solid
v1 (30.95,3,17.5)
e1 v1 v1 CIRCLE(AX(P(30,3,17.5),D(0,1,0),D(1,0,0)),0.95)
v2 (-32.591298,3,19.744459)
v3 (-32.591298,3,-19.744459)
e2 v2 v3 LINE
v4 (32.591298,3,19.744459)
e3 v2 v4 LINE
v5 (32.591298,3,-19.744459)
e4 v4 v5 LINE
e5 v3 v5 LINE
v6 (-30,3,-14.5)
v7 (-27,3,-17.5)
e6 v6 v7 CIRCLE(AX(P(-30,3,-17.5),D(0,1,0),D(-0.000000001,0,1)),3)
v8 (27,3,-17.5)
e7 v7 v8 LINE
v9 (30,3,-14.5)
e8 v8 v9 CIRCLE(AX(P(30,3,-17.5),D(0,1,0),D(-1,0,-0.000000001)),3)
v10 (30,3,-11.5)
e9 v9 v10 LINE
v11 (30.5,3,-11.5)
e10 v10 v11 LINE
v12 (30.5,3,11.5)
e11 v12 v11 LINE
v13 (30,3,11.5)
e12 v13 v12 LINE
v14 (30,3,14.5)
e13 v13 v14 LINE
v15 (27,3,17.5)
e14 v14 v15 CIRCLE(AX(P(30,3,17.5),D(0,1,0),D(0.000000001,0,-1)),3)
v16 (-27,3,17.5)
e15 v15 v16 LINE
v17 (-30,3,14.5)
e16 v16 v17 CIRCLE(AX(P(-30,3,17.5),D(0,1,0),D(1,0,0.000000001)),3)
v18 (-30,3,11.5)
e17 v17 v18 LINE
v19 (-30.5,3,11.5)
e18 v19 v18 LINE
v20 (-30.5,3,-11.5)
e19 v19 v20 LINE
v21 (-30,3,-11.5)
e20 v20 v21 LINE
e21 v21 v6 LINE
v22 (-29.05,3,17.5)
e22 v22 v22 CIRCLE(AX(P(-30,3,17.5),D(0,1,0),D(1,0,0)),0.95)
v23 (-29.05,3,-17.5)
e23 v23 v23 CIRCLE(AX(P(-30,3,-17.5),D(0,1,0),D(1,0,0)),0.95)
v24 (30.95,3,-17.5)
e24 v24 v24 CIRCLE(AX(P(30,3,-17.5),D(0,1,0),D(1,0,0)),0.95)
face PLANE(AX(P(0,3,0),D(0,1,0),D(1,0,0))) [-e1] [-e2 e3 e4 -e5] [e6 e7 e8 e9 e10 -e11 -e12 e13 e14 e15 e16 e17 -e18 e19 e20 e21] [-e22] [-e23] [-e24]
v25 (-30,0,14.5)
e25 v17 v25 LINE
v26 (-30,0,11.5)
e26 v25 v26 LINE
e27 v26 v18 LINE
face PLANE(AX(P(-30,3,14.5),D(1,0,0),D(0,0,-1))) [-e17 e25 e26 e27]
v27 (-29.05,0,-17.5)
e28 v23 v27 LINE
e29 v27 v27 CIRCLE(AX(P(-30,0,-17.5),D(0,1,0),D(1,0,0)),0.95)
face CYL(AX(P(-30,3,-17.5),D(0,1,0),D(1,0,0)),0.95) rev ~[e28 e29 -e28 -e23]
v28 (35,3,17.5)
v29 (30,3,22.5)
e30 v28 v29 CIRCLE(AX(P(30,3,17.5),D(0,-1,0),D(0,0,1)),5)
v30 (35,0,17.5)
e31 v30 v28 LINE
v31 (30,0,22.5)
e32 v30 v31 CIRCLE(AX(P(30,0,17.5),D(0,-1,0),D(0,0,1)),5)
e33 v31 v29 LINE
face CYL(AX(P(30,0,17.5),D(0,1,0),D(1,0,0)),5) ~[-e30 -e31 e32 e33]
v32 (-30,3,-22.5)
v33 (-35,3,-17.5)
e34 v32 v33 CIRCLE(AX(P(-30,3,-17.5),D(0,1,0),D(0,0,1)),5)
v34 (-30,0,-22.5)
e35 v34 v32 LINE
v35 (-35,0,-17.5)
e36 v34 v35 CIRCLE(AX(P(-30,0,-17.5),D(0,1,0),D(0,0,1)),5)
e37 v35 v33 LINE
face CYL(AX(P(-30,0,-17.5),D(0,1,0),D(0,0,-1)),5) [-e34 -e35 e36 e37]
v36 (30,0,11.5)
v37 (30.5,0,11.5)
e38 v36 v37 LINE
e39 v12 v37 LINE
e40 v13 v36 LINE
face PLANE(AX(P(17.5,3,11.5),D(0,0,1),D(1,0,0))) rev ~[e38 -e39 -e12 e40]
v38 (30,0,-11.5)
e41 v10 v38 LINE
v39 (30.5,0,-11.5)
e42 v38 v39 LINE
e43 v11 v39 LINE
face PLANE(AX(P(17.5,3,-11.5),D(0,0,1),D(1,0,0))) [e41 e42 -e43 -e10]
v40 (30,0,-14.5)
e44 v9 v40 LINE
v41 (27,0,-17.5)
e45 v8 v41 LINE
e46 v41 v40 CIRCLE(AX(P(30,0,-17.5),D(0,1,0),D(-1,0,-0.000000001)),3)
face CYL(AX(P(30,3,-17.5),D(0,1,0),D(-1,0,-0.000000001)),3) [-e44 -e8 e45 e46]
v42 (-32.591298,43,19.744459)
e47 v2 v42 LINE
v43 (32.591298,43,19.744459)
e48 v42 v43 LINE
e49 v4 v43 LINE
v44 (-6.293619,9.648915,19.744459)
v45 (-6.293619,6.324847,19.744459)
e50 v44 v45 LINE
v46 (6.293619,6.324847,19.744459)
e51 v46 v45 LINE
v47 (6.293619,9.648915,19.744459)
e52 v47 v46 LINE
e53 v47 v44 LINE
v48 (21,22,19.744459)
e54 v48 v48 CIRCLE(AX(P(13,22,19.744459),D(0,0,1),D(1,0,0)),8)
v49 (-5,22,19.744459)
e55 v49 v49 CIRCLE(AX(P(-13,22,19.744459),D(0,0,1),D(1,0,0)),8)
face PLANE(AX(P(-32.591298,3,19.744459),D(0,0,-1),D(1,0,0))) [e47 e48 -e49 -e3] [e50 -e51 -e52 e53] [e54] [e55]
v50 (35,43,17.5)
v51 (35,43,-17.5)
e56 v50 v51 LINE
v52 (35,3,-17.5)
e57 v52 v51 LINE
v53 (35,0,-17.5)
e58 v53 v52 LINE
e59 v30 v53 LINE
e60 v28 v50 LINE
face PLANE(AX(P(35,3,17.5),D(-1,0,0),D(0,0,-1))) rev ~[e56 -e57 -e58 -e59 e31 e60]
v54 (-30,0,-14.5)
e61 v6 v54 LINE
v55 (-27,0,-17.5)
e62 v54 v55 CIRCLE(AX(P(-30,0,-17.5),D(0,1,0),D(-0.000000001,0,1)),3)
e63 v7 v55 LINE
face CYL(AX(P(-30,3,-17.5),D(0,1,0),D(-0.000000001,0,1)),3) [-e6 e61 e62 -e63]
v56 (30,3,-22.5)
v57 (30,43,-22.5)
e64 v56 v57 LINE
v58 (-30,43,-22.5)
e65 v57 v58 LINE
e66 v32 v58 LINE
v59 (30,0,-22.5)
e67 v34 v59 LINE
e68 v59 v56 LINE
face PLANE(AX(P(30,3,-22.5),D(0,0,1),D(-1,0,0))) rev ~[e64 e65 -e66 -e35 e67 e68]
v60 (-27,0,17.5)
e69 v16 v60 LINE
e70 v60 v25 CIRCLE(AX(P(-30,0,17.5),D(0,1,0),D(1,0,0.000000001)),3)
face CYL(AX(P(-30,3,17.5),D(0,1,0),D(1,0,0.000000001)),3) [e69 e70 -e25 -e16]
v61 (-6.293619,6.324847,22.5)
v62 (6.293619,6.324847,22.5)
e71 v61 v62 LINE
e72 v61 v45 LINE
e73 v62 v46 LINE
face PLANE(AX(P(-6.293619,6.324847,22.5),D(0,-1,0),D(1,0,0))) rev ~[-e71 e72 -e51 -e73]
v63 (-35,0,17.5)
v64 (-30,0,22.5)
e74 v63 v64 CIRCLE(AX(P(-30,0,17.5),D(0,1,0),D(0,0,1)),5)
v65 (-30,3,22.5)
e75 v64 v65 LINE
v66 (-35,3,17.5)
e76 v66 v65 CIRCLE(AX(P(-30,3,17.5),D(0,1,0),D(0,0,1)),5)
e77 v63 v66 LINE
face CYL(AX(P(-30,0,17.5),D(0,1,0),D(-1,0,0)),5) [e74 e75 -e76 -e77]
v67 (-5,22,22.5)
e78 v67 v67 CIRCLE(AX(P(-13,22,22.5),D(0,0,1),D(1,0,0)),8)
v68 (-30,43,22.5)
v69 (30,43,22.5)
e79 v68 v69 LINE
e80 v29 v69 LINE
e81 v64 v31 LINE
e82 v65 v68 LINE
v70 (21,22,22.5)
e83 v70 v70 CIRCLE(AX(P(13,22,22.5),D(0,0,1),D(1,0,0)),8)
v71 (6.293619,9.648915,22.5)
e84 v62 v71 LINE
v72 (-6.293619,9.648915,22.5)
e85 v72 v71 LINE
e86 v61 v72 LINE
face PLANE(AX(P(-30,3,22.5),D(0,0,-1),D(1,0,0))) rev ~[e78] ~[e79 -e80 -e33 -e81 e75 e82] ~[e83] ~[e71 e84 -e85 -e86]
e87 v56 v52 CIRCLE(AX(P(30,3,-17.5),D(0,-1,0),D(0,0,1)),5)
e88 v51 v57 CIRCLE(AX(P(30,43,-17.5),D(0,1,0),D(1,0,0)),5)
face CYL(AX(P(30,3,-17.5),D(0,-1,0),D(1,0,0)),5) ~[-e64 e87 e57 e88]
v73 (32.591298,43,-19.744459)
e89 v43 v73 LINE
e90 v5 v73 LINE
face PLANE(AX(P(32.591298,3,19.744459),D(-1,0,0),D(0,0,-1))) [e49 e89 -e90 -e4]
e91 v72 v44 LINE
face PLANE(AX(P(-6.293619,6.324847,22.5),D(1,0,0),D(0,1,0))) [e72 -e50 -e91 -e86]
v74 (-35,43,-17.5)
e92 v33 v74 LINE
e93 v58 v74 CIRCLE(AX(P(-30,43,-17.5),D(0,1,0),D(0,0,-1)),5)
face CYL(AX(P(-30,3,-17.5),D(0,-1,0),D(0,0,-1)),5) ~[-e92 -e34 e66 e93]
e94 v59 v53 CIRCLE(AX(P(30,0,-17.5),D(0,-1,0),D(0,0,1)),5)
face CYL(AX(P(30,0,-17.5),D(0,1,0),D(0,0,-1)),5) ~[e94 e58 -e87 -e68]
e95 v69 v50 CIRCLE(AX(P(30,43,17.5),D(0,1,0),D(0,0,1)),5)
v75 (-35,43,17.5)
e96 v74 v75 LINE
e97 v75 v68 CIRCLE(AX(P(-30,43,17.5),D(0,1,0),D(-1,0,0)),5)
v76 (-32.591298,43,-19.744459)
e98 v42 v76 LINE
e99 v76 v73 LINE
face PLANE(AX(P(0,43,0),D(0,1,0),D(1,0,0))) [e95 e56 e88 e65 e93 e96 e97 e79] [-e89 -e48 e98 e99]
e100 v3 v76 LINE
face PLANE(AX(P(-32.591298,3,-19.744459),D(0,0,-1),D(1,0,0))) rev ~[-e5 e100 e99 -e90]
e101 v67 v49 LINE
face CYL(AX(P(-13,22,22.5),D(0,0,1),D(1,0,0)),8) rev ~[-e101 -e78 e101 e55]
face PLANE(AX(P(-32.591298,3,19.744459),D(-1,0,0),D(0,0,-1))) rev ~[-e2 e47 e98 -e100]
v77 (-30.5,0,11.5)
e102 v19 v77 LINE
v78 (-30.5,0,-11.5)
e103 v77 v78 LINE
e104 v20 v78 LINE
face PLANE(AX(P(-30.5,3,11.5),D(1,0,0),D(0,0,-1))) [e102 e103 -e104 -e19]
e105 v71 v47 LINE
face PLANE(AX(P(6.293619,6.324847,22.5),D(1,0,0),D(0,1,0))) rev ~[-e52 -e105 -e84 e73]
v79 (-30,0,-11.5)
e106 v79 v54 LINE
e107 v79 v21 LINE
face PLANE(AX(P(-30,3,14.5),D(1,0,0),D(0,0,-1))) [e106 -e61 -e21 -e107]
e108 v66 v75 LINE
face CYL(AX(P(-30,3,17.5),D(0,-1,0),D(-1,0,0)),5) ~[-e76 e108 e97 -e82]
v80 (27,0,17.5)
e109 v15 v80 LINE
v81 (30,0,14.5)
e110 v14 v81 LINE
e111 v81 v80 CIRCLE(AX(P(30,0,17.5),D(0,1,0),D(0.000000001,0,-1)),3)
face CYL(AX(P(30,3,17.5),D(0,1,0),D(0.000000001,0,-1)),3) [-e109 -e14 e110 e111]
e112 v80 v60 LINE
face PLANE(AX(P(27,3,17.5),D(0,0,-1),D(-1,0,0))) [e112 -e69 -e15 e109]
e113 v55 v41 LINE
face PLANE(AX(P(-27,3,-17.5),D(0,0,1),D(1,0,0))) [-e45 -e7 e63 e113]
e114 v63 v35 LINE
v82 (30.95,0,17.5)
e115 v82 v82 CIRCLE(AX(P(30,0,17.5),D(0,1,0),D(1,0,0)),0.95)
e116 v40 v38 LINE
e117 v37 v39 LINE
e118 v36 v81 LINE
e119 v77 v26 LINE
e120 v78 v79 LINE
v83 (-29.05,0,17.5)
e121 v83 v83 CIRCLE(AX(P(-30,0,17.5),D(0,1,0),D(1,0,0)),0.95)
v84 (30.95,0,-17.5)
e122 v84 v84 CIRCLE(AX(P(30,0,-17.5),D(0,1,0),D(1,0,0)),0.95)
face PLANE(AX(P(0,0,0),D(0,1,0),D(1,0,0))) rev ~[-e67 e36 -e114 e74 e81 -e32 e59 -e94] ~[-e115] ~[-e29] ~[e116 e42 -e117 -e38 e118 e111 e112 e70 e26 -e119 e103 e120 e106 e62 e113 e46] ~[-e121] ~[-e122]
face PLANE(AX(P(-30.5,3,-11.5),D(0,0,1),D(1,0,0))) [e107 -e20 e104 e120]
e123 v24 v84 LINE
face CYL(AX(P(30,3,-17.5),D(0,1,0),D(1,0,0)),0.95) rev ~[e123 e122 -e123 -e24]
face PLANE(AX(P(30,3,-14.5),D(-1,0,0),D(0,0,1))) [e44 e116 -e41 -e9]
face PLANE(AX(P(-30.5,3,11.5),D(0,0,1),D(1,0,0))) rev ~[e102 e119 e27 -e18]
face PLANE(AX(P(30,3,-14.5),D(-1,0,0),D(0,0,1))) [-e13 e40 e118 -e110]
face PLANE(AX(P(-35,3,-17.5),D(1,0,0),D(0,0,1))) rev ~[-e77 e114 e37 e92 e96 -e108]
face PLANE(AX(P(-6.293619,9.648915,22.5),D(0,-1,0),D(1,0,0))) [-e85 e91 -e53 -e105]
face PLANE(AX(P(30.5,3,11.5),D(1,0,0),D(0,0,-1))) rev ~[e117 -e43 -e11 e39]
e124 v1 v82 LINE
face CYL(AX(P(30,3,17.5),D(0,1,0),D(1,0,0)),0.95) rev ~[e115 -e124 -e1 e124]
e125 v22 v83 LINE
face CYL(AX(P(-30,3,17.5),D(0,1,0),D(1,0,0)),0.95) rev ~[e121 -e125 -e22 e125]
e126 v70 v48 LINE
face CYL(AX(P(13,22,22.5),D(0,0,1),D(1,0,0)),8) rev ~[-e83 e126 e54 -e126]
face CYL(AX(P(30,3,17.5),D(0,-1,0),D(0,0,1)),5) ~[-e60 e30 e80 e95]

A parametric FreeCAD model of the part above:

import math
import FreeCAD as App
import Part
import Sketcher

V = App.Vector
Q = App.Units.Quantity


def edges_at(feature, points):
    """Names of the edges that pass closest to the given points."""
    edges = feature.Shape.Edges
    near = lambda p: min(range(len(edges)), key=lambda i: edges[i].distToShape(Part.Vertex(*p))[0])
    return sorted({f"Edge{near(p) + 1}" for p in points})

doc = App.newDocument("Part")
body = doc.addObject("PartDesign::Body", "Body")

sketch1 = body.newObject("Sketcher::SketchObject", "Sketch")
sketch1.AttachmentSupport = (doc.getObject("XZ_Plane"), [""])
sketch1.MapMode = "FlatFace"
sketch1.addGeometry([
    Part.LineSegment(V(-35, -22, 0), V(-35, 22, 0)),
    Part.LineSegment(V(-35, 22, 0), V(35, 22, 0)),
    Part.LineSegment(V(35, 22, 0), V(35, -22, 0)),
    Part.LineSegment(V(35, -22, 0), V(-35, -22, 0)),
], False)
sketch1.addConstraint([
    Sketcher.Constraint("Coincident", 0, 2, 1, 1),
    Sketcher.Constraint("Coincident", 1, 2, 2, 1),
    Sketcher.Constraint("Coincident", 2, 2, 3, 1),
    Sketcher.Constraint("Coincident", 3, 2, 0, 1),
    Sketcher.Constraint("Vertical", 0),
    Sketcher.Constraint("Horizontal", 1),
    Sketcher.Constraint("Vertical", 2),
    Sketcher.Constraint("Horizontal", 3),
    Sketcher.Constraint("Symmetric", 0, 2, 2, 2, -1, 1),
    Sketcher.Constraint("DistanceX", 1, 1, 1, 2, Q("70 mm")),
    Sketcher.Constraint("DistanceY", 0, 1, 0, 2, Q("45 mm")),
])
pad1 = body.newObject("PartDesign::Pad", "Pad")
pad1.Profile = sketch1
pad1.Length = 3
pad1.Reversed = True

sketch2 = body.newObject("Sketcher::SketchObject", "Sketch001")
sketch2.AttachmentSupport = (doc.getObject("XZ_Plane"), [""])
sketch2.MapMode = "FlatFace"
sketch2.AttachmentOffset = App.Placement(V(0, 0, -3), App.Rotation())
sketch2.addGeometry([
    Part.LineSegment(V(18, -12, 0), V(18, 12, 0)),
    Part.LineSegment(V(18, 12, 0), V(30, 12, 0)),
    Part.LineSegment(V(30, 12, 0), V(30, -12, 0)),
    Part.LineSegment(V(30, -12, 0), V(18, -12, 0)),
    Part.LineSegment(V(-30, -12, 0), V(-30, 12, 0)),
    Part.LineSegment(V(-30, 12, 0), V(-18, 12, 0)),
    Part.LineSegment(V(-18, 12, 0), V(-18, -12, 0)),
    Part.LineSegment(V(-18, -12, 0), V(-30, -12, 0)),
], False)
sketch2.addConstraint([
    Sketcher.Constraint("Coincident", 0, 2, 1, 1),
    Sketcher.Constraint("Coincident", 1, 2, 2, 1),
    Sketcher.Constraint("Coincident", 2, 2, 3, 1),
    Sketcher.Constraint("Coincident", 3, 2, 0, 1),
    Sketcher.Constraint("Coincident", 4, 2, 5, 1),
    Sketcher.Constraint("Coincident", 5, 2, 6, 1),
    Sketcher.Constraint("Coincident", 6, 2, 7, 1),
    Sketcher.Constraint("Coincident", 7, 2, 4, 1),
    Sketcher.Constraint("Vertical", 0),
    Sketcher.Constraint("Horizontal", 1),
    Sketcher.Constraint("Vertical", 2),
    Sketcher.Constraint("Horizontal", 3),
    Sketcher.Constraint("Vertical", 4),
    Sketcher.Constraint("Horizontal", 5),
    Sketcher.Constraint("Vertical", 6),
    Sketcher.Constraint("Horizontal", 7),
    Sketcher.Constraint("Symmetric", 2, 2, 4, 2, -1, 1),
    Sketcher.Constraint("Symmetric", 0, 2, 6, 2, -1, 1),
    Sketcher.Constraint("Horizontal", 1, 2, 4, 2),
    Sketcher.Constraint("DistanceX", 1, 1, 1, 2, Q("13 mm")),
    Sketcher.Constraint("DistanceY", 0, 1, 0, 2, Q("23 mm")),
    Sketcher.Constraint("DistanceX", 4, 2, 0, 2, Q("48 mm")),
])
pocket1 = body.newObject("PartDesign::Pocket", "Pocket")
pocket1.Profile = sketch2
pocket1.Length = 10
pocket1.Reversed = True

sketch3 = body.newObject("Sketcher::SketchObject", "Sketch002")
sketch3.AttachmentSupport = (doc.getObject("XZ_Plane"), [""])
sketch3.MapMode = "FlatFace"
sketch3.AttachmentOffset = App.Placement(V(0, 0, -3), App.Rotation())
sketch3.addGeometry([
    Part.Circle(V(-24, -14, 0), V(0, 0, 1), 0.9),
    Part.Circle(V(-24, 14, 0), V(0, 0, 1), 0.9),
    Part.Circle(V(24, -14, 0), V(0, 0, 1), 0.9),
    Part.Circle(V(24, 14, 0), V(0, 0, 1), 0.9),
], False)
sketch3.addConstraint([
    Sketcher.Constraint("Equal", 0, 1),
    Sketcher.Constraint("Equal", 1, 2),
    Sketcher.Constraint("Equal", 2, 3),
    Sketcher.Constraint("Symmetric", 1, 3, 2, 3, -1, 1),
    Sketcher.Constraint("Symmetric", 0, 3, 3, 3, -1, 1),
    Sketcher.Constraint("Symmetric", 0, 3, 2, 3, -2),
    Sketcher.Constraint("Diameter", 0, Q("1.9 mm")),
    Sketcher.Constraint("DistanceX", 0, 3, -1, 1, Q("24 mm")),
    Sketcher.Constraint("DistanceY", 0, 3, -1, 1, Q("14 mm")),
])
pocket2 = body.newObject("PartDesign::Pocket", "Pocket001")
pocket2.Profile = sketch3
pocket2.Length = 10
pocket2.Reversed = True
doc.recompute()

fillet = body.newObject("PartDesign::Fillet", "Fillet")
fillet.Base = (pocket2, edges_at(pocket2, [(35, 1.5, -22.5)]))
fillet.Radius = 5
doc.recompute()

fillet2 = body.newObject("PartDesign::Fillet", "Fillet001")
fillet2.Base = (fillet, edges_at(fillet, [(35, 1.5, 22.5), (-35, 1.5, 22.5), (-35, 1.5, -22.5)]))
fillet2.Radius = 5

sketch4 = body.newObject("Sketcher::SketchObject", "Sketch003")
sketch4.AttachmentSupport = (doc.getObject("XZ_Plane"), [""])
sketch4.MapMode = "FlatFace"
sketch4.AttachmentOffset = App.Placement(V(0, 0, -3), App.Rotation())
sketch4.addGeometry([
    Part.Circle(V(-30, -17.5, 0), V(0, 0, 1), 0.9),
    Part.Circle(V(30, -17.5, 0), V(0, 0, 1), 0.9),
    Part.Circle(V(-30, 17.5, 0), V(0, 0, 1), 0.9),
    Part.Circle(V(30, 17.5, 0), V(0, 0, 1), 0.9),
], False)
sketch4.addConstraint([
    Sketcher.Constraint("Equal", 0, 1),
    Sketcher.Constraint("Equal", 1, 2),
    Sketcher.Constraint("Equal", 2, 3),
    Sketcher.Constraint("Symmetric", 1, 3, 2, 3, -1, 1),
    Sketcher.Constraint("Symmetric", 0, 3, 3, 3, -1, 1),
    Sketcher.Constraint("Symmetric", 0, 3, 1, 3, -2),
    Sketcher.Constraint("Diameter", 0, Q("1.9 mm")),
    Sketcher.Constraint("DistanceX", 0, 3, -1, 1, Q("30 mm")),
    Sketcher.Constraint("DistanceY", 0, 3, 2, 3, Q("35 mm")),
])
pocket3 = body.newObject("PartDesign::Pocket", "Pocket002")
pocket3.Profile = sketch4
pocket3.Length = 10
pocket3.Reversed = True

sketch5 = body.newObject("Sketcher::SketchObject", "Sketch004")
sketch5.AttachmentSupport = (doc.getObject("XZ_Plane"), [""])
sketch5.MapMode = "FlatFace"
sketch5.AttachmentOffset = App.Placement(V(0, 0, -3), App.Rotation())
sketch5.addGeometry([
    Part.LineSegment(V(27, -17.5, 0), V(-27, -17.5, 0)),
    Part.ArcOfCircle(Part.Circle(V(-30, -17.5, 0), V(0, 0, 1), 3), math.radians(0), math.radians(90)),
    Part.LineSegment(V(-30, -14.5, 0), V(-30, 14.5, 0)),
    Part.ArcOfCircle(Part.Circle(V(-30, 17.5, 0), V(0, 0, 1), 3), math.radians(-90), math.radians(0)),
    Part.LineSegment(V(-27, 17.5, 0), V(27, 17.5, 0)),
    Part.ArcOfCircle(Part.Circle(V(30, 17.5, 0), V(0, 0, 1), 3), math.radians(180), math.radians(270)),
    Part.LineSegment(V(30, 14.5, 0), V(30, -14.5, 0)),
    Part.ArcOfCircle(Part.Circle(V(30, -17.5, 0), V(0, 0, 1), 3), math.radians(90), math.radians(180)),
], False)
sketch5.addConstraint([
    Sketcher.Constraint("Coincident", 0, 2, 1, 1),
    Sketcher.Constraint("Coincident", 1, 2, 2, 1),
    Sketcher.Constraint("Coincident", 2, 2, 3, 1),
    Sketcher.Constraint("Coincident", 3, 2, 4, 1),
    Sketcher.Constraint("Coincident", 4, 2, 5, 1),
    Sketcher.Constraint("Coincident", 5, 2, 6, 1),
    Sketcher.Constraint("Coincident", 6, 2, 7, 1),
    Sketcher.Constraint("Coincident", 7, 2, 0, 1),
    Sketcher.Constraint("Horizontal", 0),
    Sketcher.Constraint("Vertical", 2),
    Sketcher.Constraint("Horizontal", 4),
    Sketcher.Constraint("Vertical", 6),
    Sketcher.Constraint("Equal", 1, 3),
    Sketcher.Constraint("Equal", 3, 5),
    Sketcher.Constraint("Equal", 5, 7),
    Sketcher.Constraint("Symmetric", 1, 3, 5, 3, -1, 1),
    Sketcher.Constraint("Symmetric", 3, 3, 7, 3, -1, 1),
    Sketcher.Constraint("Symmetric", 3, 3, 5, 3, -2),
    Sketcher.Constraint("Horizontal", 7, 3, 0, 2),
    Sketcher.Constraint("Horizontal", 5, 3, 3, 2),
    Sketcher.Constraint("Vertical", 3, 3, 1, 2),
    Sketcher.Constraint("Vertical", 7, 3, 5, 2),
    Sketcher.Constraint("Radius", 1, Q("3 mm")),
    Sketcher.Constraint("DistanceX", 0, 2, 0, 1, Q("54 mm")),
    Sketcher.Constraint("DistanceY", 2, 1, 2, 2, Q("29 mm")),
])
pocket4 = body.newObject("PartDesign::Pocket", "Pocket003")
pocket4.Profile = sketch5
pocket4.Length = 10
pocket4.Reversed = True

sketch6 = body.newObject("Sketcher::SketchObject", "Sketch005")
sketch6.AttachmentSupport = (doc.getObject("XZ_Plane"), [""])
sketch6.MapMode = "FlatFace"
sketch6.AttachmentOffset = App.Placement(V(0, 0, -3), App.Rotation())
sketch6.addGeometry([
    Part.LineSegment(V(-30, 22, 0), V(30, 22, 0)),
    Part.ArcOfCircle(Part.Circle(V(30, 18, 0), V(0, 0, 1), 5), math.radians(0), math.radians(90)),
    Part.LineSegment(V(35, 18, 0), V(35, -18, 0)),
    Part.ArcOfCircle(Part.Circle(V(30, -18, 0), V(0, 0, 1), 5), math.radians(-90), math.radians(0)),
    Part.LineSegment(V(30, -22, 0), V(-30, -22, 0)),
    Part.ArcOfCircle(Part.Circle(V(-30, -18, 0), V(0, 0, 1), 5), math.radians(180), math.radians(270)),
    Part.LineSegment(V(-35, -18, 0), V(-35, 18, 0)),
    Part.ArcOfCircle(Part.Circle(V(-30, 18, 0), V(0, 0, 1), 5), math.radians(90), math.radians(180)),
    Part.LineSegment(V(33, 20, 0), V(-33, 20, 0)),
    Part.LineSegment(V(-33, 20, 0), V(-33, -20, 0)),
    Part.LineSegment(V(-33, -20, 0), V(33, -20, 0)),
    Part.LineSegment(V(33, -20, 0), V(33, 20, 0)),
], False)
sketch6.addConstraint([
    Sketcher.Constraint("Tangent", 0, 2, 1, 2),
    Sketcher.Constraint("Tangent", 1, 1, 2, 1),
    Sketcher.Constraint("Tangent", 2, 2, 3, 2),
    Sketcher.Constraint("Tangent", 3, 1, 4, 1),
    Sketcher.Constraint("Tangent", 4, 2, 5, 2),
    Sketcher.Constraint("Tangent", 5, 1, 6, 1),
    Sketcher.Constraint("Tangent", 6, 2, 7, 2),
    Sketcher.Constraint("Tangent", 7, 1, 0, 1),
    Sketcher.Constraint("Coincident", 8, 2, 9, 1),
    Sketcher.Constraint("Coincident", 9, 2, 10, 1),
    Sketcher.Constraint("Coincident", 10, 2, 11, 1),
    Sketcher.Constraint("Coincident", 11, 2, 8, 1),
    Sketcher.Constraint("Horizontal", 0),
    Sketcher.Constraint("Vertical", 2),
    Sketcher.Constraint("Horizontal", 4),
    Sketcher.Constraint("Vertical", 6),
    Sketcher.Constraint("Horizontal", 8),
    Sketcher.Constraint("Vertical", 9),
    Sketcher.Constraint("Horizontal", 10),
    Sketcher.Constraint("Vertical", 11),
    Sketcher.Constraint("Equal", 1, 3),
    Sketcher.Constraint("Equal", 3, 5),
    Sketcher.Constraint("Equal", 5, 7),
    Sketcher.Constraint("Symmetric", 1, 3, 5, 3, -1, 1),
    Sketcher.Constraint("Symmetric", 8, 2, 10, 2, -1, 1),
    Sketcher.Constraint("Radius", 1, Q("5 mm")),
    Sketcher.Constraint("DistanceX", 0, 1, 0, 2, Q("60 mm")),
    Sketcher.Constraint("DistanceY", 2, 2, 2, 1, Q("35 mm")),
    Sketcher.Constraint("DistanceY", 9, 2, 9, 1, Q("39.488918 mm")),
    Sketcher.Constraint("DistanceX", 8, 2, -1, 1, Q("32.591298 mm")),
])
pad2 = body.newObject("PartDesign::Pad", "Pad001")
pad2.Profile = sketch6
pad2.Length = 40
pad2.Reversed = True

sketch7 = body.newObject("Sketcher::SketchObject", "Sketch006")
sketch7.AttachmentSupport = (doc.getObject("XY_Plane"), [""])
sketch7.MapMode = "FlatFace"
sketch7.AttachmentOffset = App.Placement(V(0, 0, 22.5), App.Rotation())
sketch7.addGeometry([
    Part.Circle(V(13, 22, 0), V(0, 0, 1), 8),
    Part.Circle(V(-13, 22, 0), V(0, 0, 1), 8),
    Part.LineSegment(V(-6.3, 9.6, 0), V(-6.3, 6.3, 0)),
    Part.LineSegment(V(-6.3, 6.3, 0), V(6.3, 6.3, 0)),
    Part.LineSegment(V(6.3, 6.3, 0), V(6.3, 9.6, 0)),
    Part.LineSegment(V(6.3, 9.6, 0), V(-6.3, 9.6, 0)),
], False)
sketch7.addConstraint([
    Sketcher.Constraint("Coincident", 2, 2, 3, 1),
    Sketcher.Constraint("Coincident", 3, 2, 4, 1),
    Sketcher.Constraint("Coincident", 4, 2, 5, 1),
    Sketcher.Constraint("Coincident", 5, 2, 2, 1),
    Sketcher.Constraint("Vertical", 2),
    Sketcher.Constraint("Horizontal", 3),
    Sketcher.Constraint("Vertical", 4),
    Sketcher.Constraint("Horizontal", 5),
    Sketcher.Constraint("Equal", 0, 1),
    Sketcher.Constraint("Symmetric", 0, 3, 1, 3, -2),
    Sketcher.Constraint("Diameter", 0, Q("16 mm")),
    Sketcher.Constraint("DistanceX", -1, 1, 0, 3, Q("13 mm")),
    Sketcher.Constraint("DistanceY", -1, 1, 0, 3, Q("22 mm")),
    Sketcher.Constraint("DistanceX", 3, 1, 3, 2, Q("12.587238 mm")),
    Sketcher.Constraint("DistanceY", 2, 2, 2, 1, Q("3.324069 mm")),
    Sketcher.Constraint("DistanceX", 2, 2, -1, 1, Q("6.293619 mm")),
    Sketcher.Constraint("DistanceY", -1, 1, 2, 2, Q("6.324847 mm")),
])
pocket5 = body.newObject("PartDesign::Pocket", "Pocket004")
pocket5.Profile = sketch7
pocket5.Length = 26

doc.recompute()
